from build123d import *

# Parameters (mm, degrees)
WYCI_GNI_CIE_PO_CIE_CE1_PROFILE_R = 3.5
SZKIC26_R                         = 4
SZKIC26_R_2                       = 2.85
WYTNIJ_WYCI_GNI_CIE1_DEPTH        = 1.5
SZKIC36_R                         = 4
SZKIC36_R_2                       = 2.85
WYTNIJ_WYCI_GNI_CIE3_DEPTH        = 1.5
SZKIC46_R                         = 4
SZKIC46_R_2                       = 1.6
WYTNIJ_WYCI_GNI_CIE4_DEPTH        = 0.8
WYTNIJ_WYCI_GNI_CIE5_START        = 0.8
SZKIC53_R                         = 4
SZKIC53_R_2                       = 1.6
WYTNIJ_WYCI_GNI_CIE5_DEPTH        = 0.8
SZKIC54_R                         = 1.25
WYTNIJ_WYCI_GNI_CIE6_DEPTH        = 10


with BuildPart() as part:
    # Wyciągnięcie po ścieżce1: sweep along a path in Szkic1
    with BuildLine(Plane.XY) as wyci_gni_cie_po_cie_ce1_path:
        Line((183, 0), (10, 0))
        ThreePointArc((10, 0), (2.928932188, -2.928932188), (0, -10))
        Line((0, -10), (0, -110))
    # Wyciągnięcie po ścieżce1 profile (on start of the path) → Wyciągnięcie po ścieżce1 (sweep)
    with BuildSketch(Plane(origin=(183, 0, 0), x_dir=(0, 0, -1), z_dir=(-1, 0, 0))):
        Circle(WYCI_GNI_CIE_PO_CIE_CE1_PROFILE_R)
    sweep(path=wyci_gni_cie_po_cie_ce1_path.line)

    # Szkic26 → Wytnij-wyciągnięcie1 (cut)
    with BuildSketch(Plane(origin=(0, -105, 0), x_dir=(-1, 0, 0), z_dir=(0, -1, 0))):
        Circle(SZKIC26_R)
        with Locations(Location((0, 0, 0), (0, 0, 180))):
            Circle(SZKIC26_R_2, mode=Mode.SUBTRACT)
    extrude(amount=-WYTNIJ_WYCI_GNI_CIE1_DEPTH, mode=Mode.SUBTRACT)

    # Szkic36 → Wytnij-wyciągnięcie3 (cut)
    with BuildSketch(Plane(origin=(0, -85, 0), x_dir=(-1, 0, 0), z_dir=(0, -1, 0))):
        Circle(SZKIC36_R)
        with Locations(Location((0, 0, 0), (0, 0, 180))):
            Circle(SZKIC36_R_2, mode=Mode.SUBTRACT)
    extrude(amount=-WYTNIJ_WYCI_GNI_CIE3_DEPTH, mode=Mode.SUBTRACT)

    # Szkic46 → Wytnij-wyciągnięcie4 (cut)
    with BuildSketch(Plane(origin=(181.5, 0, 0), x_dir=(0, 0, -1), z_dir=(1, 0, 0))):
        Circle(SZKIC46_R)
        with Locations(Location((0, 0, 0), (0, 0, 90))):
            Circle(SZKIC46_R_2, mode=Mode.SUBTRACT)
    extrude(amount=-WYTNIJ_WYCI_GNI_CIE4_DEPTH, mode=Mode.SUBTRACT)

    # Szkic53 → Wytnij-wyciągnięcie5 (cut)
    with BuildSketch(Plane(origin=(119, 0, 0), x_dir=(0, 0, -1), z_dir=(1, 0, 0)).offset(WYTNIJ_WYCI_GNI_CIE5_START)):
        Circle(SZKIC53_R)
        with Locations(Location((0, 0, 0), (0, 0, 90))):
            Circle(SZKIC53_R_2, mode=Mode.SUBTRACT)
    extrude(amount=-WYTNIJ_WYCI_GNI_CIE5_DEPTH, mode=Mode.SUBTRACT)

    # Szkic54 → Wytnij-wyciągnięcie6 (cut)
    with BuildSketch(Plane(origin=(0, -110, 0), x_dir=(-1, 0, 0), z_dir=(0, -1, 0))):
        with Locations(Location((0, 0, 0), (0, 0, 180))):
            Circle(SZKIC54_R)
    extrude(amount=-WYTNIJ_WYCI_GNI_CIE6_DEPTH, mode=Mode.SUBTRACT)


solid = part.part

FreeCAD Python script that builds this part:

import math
import FreeCAD as App
import Part
import Sketcher

V = App.Vector
Q = App.Units.Quantity

doc = App.newDocument("Part")
body = doc.addObject("PartDesign::Body", "Body")

sketch1 = body.newObject("Sketcher::SketchObject", "Sketch")
sketch1.AttachmentSupport = (doc.getObject("YZ_Plane"), [""])
sketch1.MapMode = "FlatFace"
sketch1.AttachmentOffset = App.Placement(V(0, 0, 183), App.Rotation())
sketch1.addGeometry(Part.Circle(V(0, 0, 0), V(0, 0, 1), 3.5), False)
sketch1.addConstraint(Sketcher.Constraint("Coincident", 0, 3, -1, 1))
sketch1.addConstraint(Sketcher.Constraint("Diameter", 0, Q("7 mm")))

sketch2 = body.newObject("Sketcher::SketchObject", "Sketch001")
sketch2.AttachmentSupport = (doc.getObject("XY_Plane"), [""])
sketch2.MapMode = "FlatFace"
sketch2.addGeometry(Part.LineSegment(V(183, 0, 0), V(10, 0, 0)), False)
sketch2.addGeometry(Part.ArcOfCircle(Part.Circle(V(10, -10, 0), V(0, 0, 1), 10), math.radians(90), math.radians(180)), False)
sketch2.addGeometry(Part.LineSegment(V(0, -10, 0), V(0, -110, 0)), False)
sketch2.addConstraint(Sketcher.Constraint("Tangent", 0, 2, 1, 1))
sketch2.addConstraint(Sketcher.Constraint("Tangent", 1, 2, 2, 1))
sketch2.addConstraint(Sketcher.Constraint("Horizontal", 0))
sketch2.addConstraint(Sketcher.Constraint("Vertical", 2))
sketch2.addConstraint(Sketcher.Constraint("PointOnObject", 0, 1, -1))
sketch2.addConstraint(Sketcher.Constraint("PointOnObject", 1, 2, -2))
sketch2.addConstraint(Sketcher.Constraint("Radius", 1, Q("10 mm")))
sketch2.addConstraint(Sketcher.Constraint("DistanceX", 0, 2, 0, 1, Q("173 mm")))
sketch2.addConstraint(Sketcher.Constraint("DistanceY", 2, 2, 2, 1, Q("100 mm")))
doc.recompute()

additivepipe = body.newObject("PartDesign::AdditivePipe", "AdditivePipe")
additivepipe.Profile = sketch1
additivepipe.Spine = (sketch2, ["Edge1", "Edge2", "Edge3"])

sketch3 = body.newObject("Sketcher::SketchObject", "Sketch002")
sketch3.AttachmentSupport = (doc.getObject("XZ_Plane"), [""])
sketch3.MapMode = "FlatFace"
sketch3.AttachmentOffset = App.Placement(V(0, 0, 105), App.Rotation())
sketch3.addGeometry(Part.Circle(V(0, 0, 0), V(0, 0, 1), 4), False)
sketch3.addGeometry(Part.Circle(V(0, 0, 0), V(0, 0, 1), 2.9), False)
sketch3.addConstraint(Sketcher.Constraint("Coincident", 0, 3, -1, 1))
sketch3.addConstraint(Sketcher.Constraint("Coincident", 1, 3, -1, 1))
sketch3.addConstraint(Sketcher.Constraint("Diameter", 0, Q("8 mm")))
sketch3.addConstraint(Sketcher.Constraint("Diameter", 1, Q("5.7 mm")))
pocket1 = body.newObject("PartDesign::Pocket", "Pocket")
pocket1.Profile = sketch3
pocket1.Length = 1.5

sketch4 = body.newObject("Sketcher::SketchObject", "Sketch003")
sketch4.AttachmentSupport = (doc.getObject("XZ_Plane"), [""])
sketch4.MapMode = "FlatFace"
sketch4.AttachmentOffset = App.Placement(V(0, 0, 85), App.Rotation())
sketch4.addGeometry(Part.Circle(V(0, 0, 0), V(0, 0, 1), 4), False)
sketch4.addGeometry(Part.Circle(V(0, 0, 0), V(0, 0, 1), 2.9), False)
sketch4.addConstraint(Sketcher.Constraint("Coincident", 0, 3, -1, 1))
sketch4.addConstraint(Sketcher.Constraint("Coincident", 1, 3, -1, 1))
sketch4.addConstraint(Sketcher.Constraint("Diameter", 0, Q("8 mm")))
sketch4.addConstraint(Sketcher.Constraint("Diameter", 1, Q("5.7 mm")))
pocket2 = body.newObject("PartDesign::Pocket", "Pocket001")
pocket2.Profile = sketch4
pocket2.Length = 1.5

sketch5 = body.newObject("Sketcher::SketchObject", "Sketch004")
sketch5.AttachmentSupport = (doc.getObject("YZ_Plane"), [""])
sketch5.MapMode = "FlatFace"
sketch5.AttachmentOffset = App.Placement(V(0, 0, 181.5), App.Rotation())
sketch5.addGeometry(Part.Circle(V(0, 0, 0), V(0, 0, 1), 4), False)
sketch5.addGeometry(Part.Circle(V(0, 0, 0), V(0, 0, 1), 1.6), False)
sketch5.addConstraint(Sketcher.Constraint("Coincident", 0, 3, -1, 1))
sketch5.addConstraint(Sketcher.Constraint("Coincident", 1, 3, -1, 1))
sketch5.addConstraint(Sketcher.Constraint("Diameter", 0, Q("8 mm")))
sketch5.addConstraint(Sketcher.Constraint("Diameter", 1, Q("3.2 mm")))
pocket3 = body.newObject("PartDesign::Pocket", "Pocket002")
pocket3.Profile = sketch5
pocket3.Length = 0.8

sketch6 = body.newObject("Sketcher::SketchObject", "Sketch005")
sketch6.AttachmentSupport = (doc.getObject("YZ_Plane"), [""])
sketch6.MapMode = "FlatFace"
sketch6.AttachmentOffset = App.Placement(V(0, 0, 119.8), App.Rotation())
sketch6.addGeometry(Part.Circle(V(0, 0, 0), V(0, 0, 1), 4), False)
sketch6.addGeometry(Part.Circle(V(0, 0, 0), V(0, 0, 1), 1.6), False)
sketch6.addConstraint(Sketcher.Constraint("Coincident", 0, 3, -1, 1))
sketch6.addConstraint(Sketcher.Constraint("Coincident", 1, 3, -1, 1))
sketch6.addConstraint(Sketcher.Constraint("Diameter", 0, Q("8 mm")))
sketch6.addConstraint(Sketcher.Constraint("Diameter", 1, Q("3.2 mm")))
pocket4 = body.newObject("PartDesign::Pocket", "Pocket003")
pocket4.Profile = sketch6
pocket4.Length = 0.8

sketch7 = body.newObject("Sketcher::SketchObject", "Sketch006")
sketch7.AttachmentSupport = (doc.getObject("XZ_Plane"), [""])
sketch7.MapMode = "FlatFace"
sketch7.AttachmentOffset = App.Placement(V(0, 0, 110), App.Rotation())
sketch7.addGeometry(Part.Circle(V(0, 0, 0), V(0, 0, 1), 1.2), False)
sketch7.addConstraint(Sketcher.Constraint("Coincident", 0, 3, -1, 1))
sketch7.addConstraint(Sketcher.Constraint("Diameter", 0, Q("2.5 mm")))
pocket5 = body.newObject("PartDesign::Pocket", "Pocket004")
pocket5.Profile = sketch7
pocket5.Length = 10

doc.recompute()
